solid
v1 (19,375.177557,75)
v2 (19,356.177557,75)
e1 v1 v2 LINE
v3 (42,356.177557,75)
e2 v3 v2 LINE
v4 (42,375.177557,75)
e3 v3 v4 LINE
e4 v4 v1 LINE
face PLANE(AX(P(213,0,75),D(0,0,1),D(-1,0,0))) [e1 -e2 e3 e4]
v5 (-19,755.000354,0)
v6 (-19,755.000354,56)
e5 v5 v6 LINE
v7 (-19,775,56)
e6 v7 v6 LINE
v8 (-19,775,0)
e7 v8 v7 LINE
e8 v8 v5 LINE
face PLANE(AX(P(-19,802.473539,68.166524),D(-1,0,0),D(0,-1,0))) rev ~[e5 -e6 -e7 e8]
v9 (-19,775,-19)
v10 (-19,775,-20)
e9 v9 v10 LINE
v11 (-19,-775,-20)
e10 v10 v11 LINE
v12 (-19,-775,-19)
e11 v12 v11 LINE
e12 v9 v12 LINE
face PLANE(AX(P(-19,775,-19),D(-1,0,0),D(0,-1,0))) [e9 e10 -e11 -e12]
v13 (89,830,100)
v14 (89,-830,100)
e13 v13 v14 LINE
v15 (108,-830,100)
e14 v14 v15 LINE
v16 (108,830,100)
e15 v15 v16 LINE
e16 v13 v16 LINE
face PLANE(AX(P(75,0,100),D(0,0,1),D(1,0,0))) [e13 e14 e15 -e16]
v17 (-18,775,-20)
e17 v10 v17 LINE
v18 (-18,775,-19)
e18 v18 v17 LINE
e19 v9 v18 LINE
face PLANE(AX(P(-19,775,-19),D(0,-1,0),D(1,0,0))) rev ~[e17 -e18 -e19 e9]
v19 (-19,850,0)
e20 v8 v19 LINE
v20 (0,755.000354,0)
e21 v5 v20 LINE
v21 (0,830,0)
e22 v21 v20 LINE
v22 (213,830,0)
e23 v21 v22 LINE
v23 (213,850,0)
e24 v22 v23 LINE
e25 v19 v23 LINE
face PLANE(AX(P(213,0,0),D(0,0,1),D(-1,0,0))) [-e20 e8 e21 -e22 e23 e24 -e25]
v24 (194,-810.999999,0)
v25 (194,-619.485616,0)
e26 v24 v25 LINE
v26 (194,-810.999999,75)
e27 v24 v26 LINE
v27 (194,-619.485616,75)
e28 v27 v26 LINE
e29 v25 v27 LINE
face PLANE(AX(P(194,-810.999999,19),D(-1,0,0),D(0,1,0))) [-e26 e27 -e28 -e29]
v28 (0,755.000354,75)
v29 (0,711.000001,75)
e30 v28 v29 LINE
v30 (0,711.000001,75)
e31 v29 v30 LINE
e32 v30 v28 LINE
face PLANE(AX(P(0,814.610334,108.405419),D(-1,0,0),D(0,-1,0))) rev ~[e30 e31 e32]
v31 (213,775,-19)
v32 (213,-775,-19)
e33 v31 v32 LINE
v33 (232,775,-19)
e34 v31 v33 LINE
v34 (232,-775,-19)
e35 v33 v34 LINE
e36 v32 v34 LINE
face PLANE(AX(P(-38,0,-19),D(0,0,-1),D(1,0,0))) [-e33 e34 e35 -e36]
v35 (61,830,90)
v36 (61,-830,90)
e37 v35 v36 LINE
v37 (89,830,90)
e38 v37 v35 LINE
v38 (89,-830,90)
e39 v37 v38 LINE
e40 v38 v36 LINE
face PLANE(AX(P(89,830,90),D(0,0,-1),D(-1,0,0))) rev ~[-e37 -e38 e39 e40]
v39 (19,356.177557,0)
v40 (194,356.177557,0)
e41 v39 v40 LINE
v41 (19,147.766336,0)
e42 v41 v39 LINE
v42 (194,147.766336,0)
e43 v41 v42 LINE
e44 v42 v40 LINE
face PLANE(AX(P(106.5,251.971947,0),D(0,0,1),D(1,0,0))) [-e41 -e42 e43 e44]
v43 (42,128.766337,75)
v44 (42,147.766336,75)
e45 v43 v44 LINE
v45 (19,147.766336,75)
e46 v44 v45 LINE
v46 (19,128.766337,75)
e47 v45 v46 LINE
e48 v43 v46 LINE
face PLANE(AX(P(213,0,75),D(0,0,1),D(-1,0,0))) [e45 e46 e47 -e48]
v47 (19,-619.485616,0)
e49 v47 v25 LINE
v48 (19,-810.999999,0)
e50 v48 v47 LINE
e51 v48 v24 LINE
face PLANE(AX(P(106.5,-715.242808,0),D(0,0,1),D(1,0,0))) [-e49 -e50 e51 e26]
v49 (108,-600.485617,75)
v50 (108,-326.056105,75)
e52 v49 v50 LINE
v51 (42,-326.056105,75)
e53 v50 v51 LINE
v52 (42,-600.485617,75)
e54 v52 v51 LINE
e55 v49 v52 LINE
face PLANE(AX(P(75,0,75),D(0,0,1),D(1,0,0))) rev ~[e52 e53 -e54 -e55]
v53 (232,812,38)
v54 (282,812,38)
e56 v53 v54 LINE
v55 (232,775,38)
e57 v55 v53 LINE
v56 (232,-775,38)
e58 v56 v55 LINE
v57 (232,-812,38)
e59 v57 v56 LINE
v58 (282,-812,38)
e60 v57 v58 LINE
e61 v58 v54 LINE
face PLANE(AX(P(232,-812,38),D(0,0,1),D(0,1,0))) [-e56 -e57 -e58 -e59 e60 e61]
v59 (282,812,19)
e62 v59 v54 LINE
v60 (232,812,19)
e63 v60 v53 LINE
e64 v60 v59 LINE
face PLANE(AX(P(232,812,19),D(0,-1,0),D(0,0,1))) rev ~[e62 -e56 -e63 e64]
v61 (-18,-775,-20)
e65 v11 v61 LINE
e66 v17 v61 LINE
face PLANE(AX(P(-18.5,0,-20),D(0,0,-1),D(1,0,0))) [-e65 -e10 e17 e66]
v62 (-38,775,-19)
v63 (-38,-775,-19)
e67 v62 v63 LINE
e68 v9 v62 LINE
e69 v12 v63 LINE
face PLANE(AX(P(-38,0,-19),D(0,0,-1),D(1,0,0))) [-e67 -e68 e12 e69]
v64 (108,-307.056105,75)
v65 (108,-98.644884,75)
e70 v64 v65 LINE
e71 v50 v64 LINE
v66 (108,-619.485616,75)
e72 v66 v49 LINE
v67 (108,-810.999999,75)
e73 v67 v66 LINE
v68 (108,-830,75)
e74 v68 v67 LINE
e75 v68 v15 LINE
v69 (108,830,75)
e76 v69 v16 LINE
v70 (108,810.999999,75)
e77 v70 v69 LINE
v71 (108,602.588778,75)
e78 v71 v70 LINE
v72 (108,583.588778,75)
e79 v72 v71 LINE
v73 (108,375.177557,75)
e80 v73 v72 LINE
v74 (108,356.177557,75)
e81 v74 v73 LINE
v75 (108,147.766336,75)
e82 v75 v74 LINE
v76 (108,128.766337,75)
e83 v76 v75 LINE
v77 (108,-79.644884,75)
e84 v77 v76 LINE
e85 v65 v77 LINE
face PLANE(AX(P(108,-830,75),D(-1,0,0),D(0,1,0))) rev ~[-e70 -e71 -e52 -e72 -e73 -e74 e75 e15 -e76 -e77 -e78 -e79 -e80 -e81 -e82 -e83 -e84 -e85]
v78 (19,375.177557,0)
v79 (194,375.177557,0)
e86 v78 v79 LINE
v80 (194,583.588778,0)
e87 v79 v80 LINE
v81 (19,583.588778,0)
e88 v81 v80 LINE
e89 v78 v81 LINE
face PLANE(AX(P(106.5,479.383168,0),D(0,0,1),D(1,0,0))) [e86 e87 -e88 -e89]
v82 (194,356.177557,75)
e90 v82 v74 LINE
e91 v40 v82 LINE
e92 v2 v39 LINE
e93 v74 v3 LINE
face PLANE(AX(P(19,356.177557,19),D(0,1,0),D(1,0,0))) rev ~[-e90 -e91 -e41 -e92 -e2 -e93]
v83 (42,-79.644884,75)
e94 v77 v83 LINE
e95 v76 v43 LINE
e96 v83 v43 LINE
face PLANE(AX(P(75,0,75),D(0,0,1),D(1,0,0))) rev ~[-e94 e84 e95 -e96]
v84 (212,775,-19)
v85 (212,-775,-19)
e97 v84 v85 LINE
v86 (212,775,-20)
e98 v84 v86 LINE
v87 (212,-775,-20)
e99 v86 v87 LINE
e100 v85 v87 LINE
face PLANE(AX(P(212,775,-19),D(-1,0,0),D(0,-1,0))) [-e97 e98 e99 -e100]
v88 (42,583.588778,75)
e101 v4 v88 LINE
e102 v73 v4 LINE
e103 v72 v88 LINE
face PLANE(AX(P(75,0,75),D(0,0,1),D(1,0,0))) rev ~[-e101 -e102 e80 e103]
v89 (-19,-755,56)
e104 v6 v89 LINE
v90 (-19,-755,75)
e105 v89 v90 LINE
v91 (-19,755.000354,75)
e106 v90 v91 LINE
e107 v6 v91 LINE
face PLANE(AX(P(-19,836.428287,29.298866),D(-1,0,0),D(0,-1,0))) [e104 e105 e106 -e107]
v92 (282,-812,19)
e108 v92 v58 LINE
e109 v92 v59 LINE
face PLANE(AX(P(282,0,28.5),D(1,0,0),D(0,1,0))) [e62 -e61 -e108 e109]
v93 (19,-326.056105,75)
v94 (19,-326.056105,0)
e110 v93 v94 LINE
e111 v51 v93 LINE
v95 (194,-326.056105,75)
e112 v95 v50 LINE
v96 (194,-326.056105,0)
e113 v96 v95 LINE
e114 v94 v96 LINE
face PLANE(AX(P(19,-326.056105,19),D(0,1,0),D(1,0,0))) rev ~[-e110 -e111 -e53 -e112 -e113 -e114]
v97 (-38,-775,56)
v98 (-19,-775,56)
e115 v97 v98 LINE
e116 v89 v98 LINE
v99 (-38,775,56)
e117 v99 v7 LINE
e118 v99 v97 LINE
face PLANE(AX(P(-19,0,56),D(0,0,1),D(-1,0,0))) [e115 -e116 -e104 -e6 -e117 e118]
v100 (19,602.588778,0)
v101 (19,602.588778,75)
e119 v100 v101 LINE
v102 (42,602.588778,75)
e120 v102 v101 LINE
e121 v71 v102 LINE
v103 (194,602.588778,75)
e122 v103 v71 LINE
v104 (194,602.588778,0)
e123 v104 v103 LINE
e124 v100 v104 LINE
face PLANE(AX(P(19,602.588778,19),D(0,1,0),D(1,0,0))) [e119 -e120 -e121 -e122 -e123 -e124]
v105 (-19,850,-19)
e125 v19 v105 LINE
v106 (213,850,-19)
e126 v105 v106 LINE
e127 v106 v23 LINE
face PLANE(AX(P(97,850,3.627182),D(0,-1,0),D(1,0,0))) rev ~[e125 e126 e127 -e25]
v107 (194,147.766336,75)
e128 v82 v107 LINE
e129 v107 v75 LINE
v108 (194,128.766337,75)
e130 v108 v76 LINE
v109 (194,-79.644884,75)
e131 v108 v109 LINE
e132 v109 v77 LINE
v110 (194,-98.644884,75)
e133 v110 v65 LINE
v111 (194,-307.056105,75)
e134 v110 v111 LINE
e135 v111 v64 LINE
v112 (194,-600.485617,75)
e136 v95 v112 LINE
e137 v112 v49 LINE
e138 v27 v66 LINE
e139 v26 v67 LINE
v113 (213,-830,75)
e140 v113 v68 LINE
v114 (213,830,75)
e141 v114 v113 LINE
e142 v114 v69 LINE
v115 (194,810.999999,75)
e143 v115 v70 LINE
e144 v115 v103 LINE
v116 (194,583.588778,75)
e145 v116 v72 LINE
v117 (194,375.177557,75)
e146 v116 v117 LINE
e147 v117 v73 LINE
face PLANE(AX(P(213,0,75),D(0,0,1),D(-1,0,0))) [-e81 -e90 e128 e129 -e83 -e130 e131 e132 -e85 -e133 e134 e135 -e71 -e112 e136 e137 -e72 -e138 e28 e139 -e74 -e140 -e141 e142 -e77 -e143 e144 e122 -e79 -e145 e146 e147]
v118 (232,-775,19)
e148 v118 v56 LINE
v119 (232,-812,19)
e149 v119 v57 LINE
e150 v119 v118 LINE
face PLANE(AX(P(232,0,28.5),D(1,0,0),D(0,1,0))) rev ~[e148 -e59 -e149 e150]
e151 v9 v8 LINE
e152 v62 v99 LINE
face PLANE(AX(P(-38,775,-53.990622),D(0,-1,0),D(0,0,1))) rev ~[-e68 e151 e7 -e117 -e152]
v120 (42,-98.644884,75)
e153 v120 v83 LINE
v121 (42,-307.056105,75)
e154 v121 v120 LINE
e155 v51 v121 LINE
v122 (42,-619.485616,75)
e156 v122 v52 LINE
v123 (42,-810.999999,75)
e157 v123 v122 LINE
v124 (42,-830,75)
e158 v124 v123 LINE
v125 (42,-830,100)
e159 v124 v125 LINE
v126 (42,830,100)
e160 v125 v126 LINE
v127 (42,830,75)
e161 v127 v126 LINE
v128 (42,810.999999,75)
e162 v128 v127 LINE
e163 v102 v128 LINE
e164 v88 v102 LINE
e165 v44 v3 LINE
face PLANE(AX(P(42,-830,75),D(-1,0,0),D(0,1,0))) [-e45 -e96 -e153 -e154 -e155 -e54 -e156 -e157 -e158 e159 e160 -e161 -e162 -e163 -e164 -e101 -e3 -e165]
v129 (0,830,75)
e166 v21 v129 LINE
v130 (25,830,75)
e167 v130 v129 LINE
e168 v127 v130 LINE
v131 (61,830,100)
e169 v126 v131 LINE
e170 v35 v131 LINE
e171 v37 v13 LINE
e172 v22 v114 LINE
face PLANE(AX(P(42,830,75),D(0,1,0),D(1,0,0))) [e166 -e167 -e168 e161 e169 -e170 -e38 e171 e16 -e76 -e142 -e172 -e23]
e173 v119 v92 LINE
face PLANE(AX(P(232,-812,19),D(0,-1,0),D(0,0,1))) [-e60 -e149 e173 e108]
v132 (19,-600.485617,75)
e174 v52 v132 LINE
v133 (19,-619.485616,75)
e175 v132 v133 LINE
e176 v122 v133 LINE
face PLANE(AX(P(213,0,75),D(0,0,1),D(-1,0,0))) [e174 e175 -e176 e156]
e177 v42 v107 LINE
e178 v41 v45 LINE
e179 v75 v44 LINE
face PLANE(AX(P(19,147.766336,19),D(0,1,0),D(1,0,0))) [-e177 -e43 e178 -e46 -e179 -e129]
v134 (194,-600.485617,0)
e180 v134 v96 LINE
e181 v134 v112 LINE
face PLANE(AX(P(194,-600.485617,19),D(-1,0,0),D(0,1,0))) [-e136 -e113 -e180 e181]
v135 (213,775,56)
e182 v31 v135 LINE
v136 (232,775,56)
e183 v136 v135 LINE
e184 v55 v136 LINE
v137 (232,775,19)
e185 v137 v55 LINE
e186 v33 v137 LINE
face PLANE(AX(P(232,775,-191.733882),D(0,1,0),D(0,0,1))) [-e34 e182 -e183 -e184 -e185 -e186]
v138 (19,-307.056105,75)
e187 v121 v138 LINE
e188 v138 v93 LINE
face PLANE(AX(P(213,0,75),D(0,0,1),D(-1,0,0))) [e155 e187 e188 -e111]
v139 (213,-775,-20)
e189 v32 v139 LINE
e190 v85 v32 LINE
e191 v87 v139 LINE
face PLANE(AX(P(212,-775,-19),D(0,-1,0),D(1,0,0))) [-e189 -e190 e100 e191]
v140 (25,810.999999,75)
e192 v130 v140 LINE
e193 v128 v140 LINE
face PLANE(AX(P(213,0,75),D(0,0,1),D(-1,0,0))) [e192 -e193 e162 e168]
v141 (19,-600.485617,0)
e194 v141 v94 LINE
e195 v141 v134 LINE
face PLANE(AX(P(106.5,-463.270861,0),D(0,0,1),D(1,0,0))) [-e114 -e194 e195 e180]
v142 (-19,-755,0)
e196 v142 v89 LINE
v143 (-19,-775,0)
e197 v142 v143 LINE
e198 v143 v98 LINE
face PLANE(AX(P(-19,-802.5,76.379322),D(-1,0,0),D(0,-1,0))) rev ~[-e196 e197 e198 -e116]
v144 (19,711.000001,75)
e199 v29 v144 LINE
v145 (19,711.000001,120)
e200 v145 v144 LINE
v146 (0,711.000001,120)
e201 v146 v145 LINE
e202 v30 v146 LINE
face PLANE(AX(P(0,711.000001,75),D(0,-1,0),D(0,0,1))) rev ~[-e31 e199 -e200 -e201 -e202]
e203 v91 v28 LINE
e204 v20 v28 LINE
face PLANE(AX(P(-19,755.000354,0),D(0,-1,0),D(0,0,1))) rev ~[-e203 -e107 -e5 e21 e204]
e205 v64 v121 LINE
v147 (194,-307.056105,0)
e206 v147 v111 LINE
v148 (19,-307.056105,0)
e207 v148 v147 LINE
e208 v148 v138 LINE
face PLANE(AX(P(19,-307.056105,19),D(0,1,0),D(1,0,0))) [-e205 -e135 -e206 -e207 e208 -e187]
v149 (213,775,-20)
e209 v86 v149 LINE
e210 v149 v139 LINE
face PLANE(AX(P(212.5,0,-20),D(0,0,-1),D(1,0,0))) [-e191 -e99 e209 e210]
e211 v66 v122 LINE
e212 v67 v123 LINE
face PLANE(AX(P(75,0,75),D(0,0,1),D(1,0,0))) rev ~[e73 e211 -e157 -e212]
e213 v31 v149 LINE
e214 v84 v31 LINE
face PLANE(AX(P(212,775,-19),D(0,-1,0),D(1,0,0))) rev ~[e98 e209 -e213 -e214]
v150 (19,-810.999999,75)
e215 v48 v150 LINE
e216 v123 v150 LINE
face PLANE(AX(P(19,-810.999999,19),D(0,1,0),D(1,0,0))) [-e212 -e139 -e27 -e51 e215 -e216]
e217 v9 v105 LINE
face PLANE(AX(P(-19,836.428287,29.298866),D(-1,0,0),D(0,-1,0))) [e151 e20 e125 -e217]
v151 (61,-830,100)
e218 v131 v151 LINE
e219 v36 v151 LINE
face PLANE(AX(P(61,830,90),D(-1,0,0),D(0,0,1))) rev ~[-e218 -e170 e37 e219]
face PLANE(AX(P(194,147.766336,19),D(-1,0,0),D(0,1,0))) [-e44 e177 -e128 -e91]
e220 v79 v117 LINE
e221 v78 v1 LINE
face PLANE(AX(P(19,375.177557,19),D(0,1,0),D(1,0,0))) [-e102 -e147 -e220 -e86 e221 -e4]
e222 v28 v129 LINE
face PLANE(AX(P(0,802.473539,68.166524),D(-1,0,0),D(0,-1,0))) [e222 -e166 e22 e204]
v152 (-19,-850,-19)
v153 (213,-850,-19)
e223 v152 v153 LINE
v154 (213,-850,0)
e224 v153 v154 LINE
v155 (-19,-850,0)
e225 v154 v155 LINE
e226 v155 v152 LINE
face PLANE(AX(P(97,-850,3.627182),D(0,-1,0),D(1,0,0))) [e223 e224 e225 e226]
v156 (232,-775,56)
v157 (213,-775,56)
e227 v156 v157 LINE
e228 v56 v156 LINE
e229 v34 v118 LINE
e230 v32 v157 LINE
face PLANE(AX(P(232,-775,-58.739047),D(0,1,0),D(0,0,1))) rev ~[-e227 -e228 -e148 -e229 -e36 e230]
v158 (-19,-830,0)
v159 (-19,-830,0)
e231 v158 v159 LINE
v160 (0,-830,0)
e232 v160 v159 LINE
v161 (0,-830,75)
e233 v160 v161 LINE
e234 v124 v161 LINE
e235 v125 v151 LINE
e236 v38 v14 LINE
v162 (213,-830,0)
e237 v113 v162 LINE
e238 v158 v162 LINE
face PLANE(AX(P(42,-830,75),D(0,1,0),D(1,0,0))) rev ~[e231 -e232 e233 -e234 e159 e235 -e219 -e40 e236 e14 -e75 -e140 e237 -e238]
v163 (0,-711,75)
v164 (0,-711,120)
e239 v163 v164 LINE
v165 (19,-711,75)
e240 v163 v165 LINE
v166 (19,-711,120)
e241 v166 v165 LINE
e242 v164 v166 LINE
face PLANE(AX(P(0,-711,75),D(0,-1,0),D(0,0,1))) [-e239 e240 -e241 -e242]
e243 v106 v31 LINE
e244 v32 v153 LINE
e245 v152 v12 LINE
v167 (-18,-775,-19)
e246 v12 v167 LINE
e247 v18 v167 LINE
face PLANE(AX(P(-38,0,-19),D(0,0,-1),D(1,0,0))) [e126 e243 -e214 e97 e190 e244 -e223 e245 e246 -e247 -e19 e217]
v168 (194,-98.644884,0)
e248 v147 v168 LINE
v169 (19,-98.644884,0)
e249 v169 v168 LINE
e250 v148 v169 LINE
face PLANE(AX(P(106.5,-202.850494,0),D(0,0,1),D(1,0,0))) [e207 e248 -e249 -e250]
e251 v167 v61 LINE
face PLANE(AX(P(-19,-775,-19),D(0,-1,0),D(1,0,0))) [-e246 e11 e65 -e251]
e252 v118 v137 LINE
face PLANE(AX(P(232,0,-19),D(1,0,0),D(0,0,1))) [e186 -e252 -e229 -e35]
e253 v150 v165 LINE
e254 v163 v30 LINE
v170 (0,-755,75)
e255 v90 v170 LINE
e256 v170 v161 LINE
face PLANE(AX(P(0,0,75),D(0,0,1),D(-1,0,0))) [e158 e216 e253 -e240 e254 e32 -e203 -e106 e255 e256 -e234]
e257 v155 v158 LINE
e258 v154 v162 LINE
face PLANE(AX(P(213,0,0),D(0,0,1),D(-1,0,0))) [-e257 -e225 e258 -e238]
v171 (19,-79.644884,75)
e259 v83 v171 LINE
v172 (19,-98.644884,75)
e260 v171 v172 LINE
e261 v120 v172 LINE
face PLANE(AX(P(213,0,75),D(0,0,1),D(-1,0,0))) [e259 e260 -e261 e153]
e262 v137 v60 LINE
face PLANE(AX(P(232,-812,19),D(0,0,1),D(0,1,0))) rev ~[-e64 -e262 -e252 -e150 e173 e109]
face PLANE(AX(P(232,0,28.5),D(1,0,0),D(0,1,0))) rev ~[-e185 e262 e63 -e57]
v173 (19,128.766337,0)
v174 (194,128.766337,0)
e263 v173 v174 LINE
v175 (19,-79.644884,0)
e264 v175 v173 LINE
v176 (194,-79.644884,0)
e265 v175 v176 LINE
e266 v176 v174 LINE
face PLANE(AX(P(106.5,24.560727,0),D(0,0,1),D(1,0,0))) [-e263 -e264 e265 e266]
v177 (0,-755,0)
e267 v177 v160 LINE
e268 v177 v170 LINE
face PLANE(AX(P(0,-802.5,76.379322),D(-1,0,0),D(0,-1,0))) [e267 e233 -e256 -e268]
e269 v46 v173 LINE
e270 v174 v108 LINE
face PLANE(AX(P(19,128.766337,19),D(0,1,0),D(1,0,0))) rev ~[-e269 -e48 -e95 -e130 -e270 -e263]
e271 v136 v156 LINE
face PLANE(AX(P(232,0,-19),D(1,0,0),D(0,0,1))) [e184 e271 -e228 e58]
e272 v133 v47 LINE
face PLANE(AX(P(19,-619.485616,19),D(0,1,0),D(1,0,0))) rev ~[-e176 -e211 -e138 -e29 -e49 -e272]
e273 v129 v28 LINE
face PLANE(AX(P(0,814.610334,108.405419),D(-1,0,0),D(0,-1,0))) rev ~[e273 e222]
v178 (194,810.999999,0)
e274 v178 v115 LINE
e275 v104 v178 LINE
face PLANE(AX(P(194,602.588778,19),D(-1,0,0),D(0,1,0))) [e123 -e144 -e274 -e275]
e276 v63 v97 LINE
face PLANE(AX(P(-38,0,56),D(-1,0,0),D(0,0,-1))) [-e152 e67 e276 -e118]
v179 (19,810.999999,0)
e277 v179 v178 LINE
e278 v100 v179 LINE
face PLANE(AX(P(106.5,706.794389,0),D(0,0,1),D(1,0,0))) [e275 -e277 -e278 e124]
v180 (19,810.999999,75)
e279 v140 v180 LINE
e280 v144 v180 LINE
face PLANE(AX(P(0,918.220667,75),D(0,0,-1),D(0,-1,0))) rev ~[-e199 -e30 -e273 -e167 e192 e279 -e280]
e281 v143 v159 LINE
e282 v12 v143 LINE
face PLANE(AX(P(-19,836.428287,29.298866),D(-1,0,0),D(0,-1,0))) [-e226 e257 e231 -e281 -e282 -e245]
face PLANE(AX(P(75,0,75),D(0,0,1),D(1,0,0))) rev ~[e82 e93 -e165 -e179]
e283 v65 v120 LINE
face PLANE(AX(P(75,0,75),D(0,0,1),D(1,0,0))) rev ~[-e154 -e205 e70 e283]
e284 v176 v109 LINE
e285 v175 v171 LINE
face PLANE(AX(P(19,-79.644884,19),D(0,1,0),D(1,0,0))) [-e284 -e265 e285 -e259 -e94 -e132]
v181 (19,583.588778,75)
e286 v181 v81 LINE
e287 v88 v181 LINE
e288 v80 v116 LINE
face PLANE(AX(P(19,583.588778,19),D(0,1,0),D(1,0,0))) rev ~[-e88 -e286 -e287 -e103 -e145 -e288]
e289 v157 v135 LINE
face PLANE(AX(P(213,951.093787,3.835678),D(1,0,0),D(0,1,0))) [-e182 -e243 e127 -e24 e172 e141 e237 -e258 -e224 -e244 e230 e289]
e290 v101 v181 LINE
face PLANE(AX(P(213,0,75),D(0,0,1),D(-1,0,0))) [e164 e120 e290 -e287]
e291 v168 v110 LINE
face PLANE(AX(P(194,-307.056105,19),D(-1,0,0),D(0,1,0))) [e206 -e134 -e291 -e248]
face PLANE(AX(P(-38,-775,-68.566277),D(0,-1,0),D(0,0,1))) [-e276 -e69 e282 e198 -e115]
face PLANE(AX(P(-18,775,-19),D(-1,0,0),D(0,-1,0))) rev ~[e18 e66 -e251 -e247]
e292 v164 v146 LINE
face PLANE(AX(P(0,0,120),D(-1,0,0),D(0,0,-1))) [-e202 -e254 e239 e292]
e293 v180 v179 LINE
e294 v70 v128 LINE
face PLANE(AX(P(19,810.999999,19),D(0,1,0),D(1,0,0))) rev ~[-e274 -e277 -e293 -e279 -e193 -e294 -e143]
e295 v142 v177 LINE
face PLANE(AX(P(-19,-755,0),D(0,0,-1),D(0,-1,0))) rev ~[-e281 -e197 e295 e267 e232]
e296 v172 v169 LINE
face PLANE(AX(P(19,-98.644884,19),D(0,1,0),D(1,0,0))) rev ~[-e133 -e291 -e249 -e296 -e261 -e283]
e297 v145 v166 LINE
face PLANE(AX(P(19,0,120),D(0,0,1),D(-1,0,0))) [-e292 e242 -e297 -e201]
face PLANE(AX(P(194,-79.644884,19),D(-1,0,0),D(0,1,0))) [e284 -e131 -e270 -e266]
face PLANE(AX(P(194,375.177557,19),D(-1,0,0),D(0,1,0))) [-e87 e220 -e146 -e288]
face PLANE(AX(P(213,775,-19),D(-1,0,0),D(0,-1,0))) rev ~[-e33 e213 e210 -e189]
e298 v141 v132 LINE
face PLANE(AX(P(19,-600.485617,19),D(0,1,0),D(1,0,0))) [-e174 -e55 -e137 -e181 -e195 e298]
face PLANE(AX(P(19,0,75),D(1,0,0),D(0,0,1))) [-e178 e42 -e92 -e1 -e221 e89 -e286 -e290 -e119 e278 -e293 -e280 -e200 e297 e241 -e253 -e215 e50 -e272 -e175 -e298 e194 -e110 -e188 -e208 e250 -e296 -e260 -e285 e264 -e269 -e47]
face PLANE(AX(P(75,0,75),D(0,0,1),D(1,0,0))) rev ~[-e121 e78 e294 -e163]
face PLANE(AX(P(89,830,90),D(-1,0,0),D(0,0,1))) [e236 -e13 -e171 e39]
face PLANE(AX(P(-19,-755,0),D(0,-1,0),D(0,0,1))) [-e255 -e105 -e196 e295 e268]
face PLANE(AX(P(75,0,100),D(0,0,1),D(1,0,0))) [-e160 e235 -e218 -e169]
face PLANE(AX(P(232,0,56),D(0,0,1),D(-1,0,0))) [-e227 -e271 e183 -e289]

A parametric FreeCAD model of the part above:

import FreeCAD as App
import Part
import Sketcher


def add_polygon(sketch, points):
    """Adds a closed chain of lines whose ends are joined by coincident constraints."""
    first, n = sketch.GeometryCount, len(points)
    for a, b in zip(points, points[1:] + points[:1]):
        sketch.addGeometry(Part.LineSegment(App.Vector(*a, 0), App.Vector(*b, 0)), False)
    for i in range(n):
        sketch.addConstraint(Sketcher.Constraint("Coincident", first + i, 2, first + (i + 1) % n, 1))

doc = App.newDocument("Part")
body = doc.addObject("PartDesign::Body", "Body")

sketch1 = doc.addObject("Sketcher::SketchObject", "Sketch")
body.addObject(sketch1)
sketch1.AttachmentSupport = (doc.XZ_Plane, [""])
sketch1.MapMode = "FlatFace"
add_polygon(sketch1, [(-19, 75), (-19, 0), (213, 0), (213, 75), (19, 75), (19, 120), (0, 120), (0, 75)])
sketch1.addConstraint(Sketcher.Constraint("Vertical", 0))
sketch1.addConstraint(Sketcher.Constraint("Horizontal", 1))
sketch1.addConstraint(Sketcher.Constraint("Vertical", 2))
sketch1.addConstraint(Sketcher.Constraint("Horizontal", 3))
sketch1.addConstraint(Sketcher.Constraint("Vertical", 4))
sketch1.addConstraint(Sketcher.Constraint("Horizontal", 5))
sketch1.addConstraint(Sketcher.Constraint("Vertical", 6))
sketch1.addConstraint(Sketcher.Constraint("Horizontal", 7))
sketch1.addConstraint(Sketcher.Constraint("Symmetric", 3, 2, 7, 2, -2))
sketch1.addConstraint(Sketcher.Constraint("PointOnObject", 0, 2, -1))
sketch1.addConstraint(Sketcher.Constraint("PointOnObject", 5, 2, -2))
sketch1.addConstraint(Sketcher.Constraint("DistanceX", 1, 1, 1, 2, 232.0))
sketch1.addConstraint(Sketcher.Constraint("DistanceX", 3, 2, 3, 1, 194.0))
sketch1.addConstraint(Sketcher.Constraint("DistanceY", 0, 2, 0, 1, 75.0))
sketch1.addConstraint(Sketcher.Constraint("DistanceY", 4, 1, 4, 2, 45.0))
pad1 = doc.addObject("PartDesign::Pad", "Pad")
body.addObject(pad1)
pad1.Profile = sketch1
pad1.Length = 1660
pad1.Midplane = True

sketch2 = doc.addObject("Sketcher::SketchObject", "Sketch001")
body.addObject(sketch2)
sketch2.AttachmentSupport = (doc.XY_Plane, [""])
sketch2.MapMode = "FlatFace"
sketch2.AttachmentOffset = App.Placement(App.Vector(0, 0, 19), App.Rotation())
add_polygon(sketch2, [(19, 810.999999), (19, 602.588778), (194, 602.588778), (194, 810.999999)])
add_polygon(sketch2, [(19, 583.588778), (19, 375.177557), (194, 375.177557), (194, 583.588778)])
add_polygon(sketch2, [(19, 356.177557), (19, 147.766336), (194, 147.766336), (194, 356.177557)])
add_polygon(sketch2, [(19, 128.766337), (19, -79.644884), (194, -79.644884), (194, 128.766337)])
add_polygon(sketch2, [(19, -619.485616), (19, -810.999999), (194, -810.999999), (194, -619.485616)])
add_polygon(sketch2, [(19, -326.056105), (19, -600.485617), (194, -600.485617), (194, -326.056105)])
add_polygon(sketch2, [(19, -98.644884), (19, -307.056105), (194, -307.056105), (194, -98.644884)])
sketch2.addConstraint(Sketcher.Constraint("Vertical", 0))
sketch2.addConstraint(Sketcher.Constraint("Horizontal", 1))
sketch2.addConstraint(Sketcher.Constraint("Vertical", 2))
sketch2.addConstraint(Sketcher.Constraint("Horizontal", 3))
sketch2.addConstraint(Sketcher.Constraint("Vertical", 4))
sketch2.addConstraint(Sketcher.Constraint("Horizontal", 5))
sketch2.addConstraint(Sketcher.Constraint("Vertical", 6))
sketch2.addConstraint(Sketcher.Constraint("Horizontal", 7))
sketch2.addConstraint(Sketcher.Constraint("Vertical", 8))
sketch2.addConstraint(Sketcher.Constraint("Horizontal", 9))
sketch2.addConstraint(Sketcher.Constraint("Vertical", 10))
sketch2.addConstraint(Sketcher.Constraint("Horizontal", 11))
sketch2.addConstraint(Sketcher.Constraint("Vertical", 12))
sketch2.addConstraint(Sketcher.Constraint("Horizontal", 13))
sketch2.addConstraint(Sketcher.Constraint("Vertical", 14))
sketch2.addConstraint(Sketcher.Constraint("Horizontal", 15))
sketch2.addConstraint(Sketcher.Constraint("Vertical", 16))
sketch2.addConstraint(Sketcher.Constraint("Horizontal", 17))
sketch2.addConstraint(Sketcher.Constraint("Vertical", 18))
sketch2.addConstraint(Sketcher.Constraint("Horizontal", 19))
sketch2.addConstraint(Sketcher.Constraint("Vertical", 20))
sketch2.addConstraint(Sketcher.Constraint("Horizontal", 21))
sketch2.addConstraint(Sketcher.Constraint("Vertical", 22))
sketch2.addConstraint(Sketcher.Constraint("Horizontal", 23))
sketch2.addConstraint(Sketcher.Constraint("Vertical", 24))
sketch2.addConstraint(Sketcher.Constraint("Horizontal", 25))
sketch2.addConstraint(Sketcher.Constraint("Vertical", 26))
sketch2.addConstraint(Sketcher.Constraint("Horizontal", 27))
sketch2.addConstraint(Sketcher.Constraint("Symmetric", 3, 2, 16, 2, -1))
sketch2.addConstraint(Sketcher.Constraint("Vertical", 3, 2, 4, 2))
sketch2.addConstraint(Sketcher.Constraint("Vertical", 2, 2, 5, 2))
sketch2.addConstraint(Sketcher.Constraint("Vertical", 7, 2, 8, 2))
sketch2.addConstraint(Sketcher.Constraint("Vertical", 6, 2, 9, 2))
sketch2.addConstraint(Sketcher.Constraint("Vertical", 11, 2, 12, 2))
sketch2.addConstraint(Sketcher.Constraint("Vertical", 10, 2, 13, 2))
sketch2.addConstraint(Sketcher.Constraint("Vertical", 14, 2, 17, 2))
sketch2.addConstraint(Sketcher.Constraint("Vertical", 19, 2, 20, 2))
sketch2.addConstraint(Sketcher.Constraint("Vertical", 18, 2, 21, 2))
sketch2.addConstraint(Sketcher.Constraint("Vertical", 23, 2, 24, 2))
sketch2.addConstraint(Sketcher.Constraint("Vertical", 22, 2, 25, 2))
sketch2.addConstraint(Sketcher.Constraint("Equal", 2, 4))
sketch2.addConstraint(Sketcher.Constraint("Equal", 6, 8))
sketch2.addConstraint(Sketcher.Constraint("Equal", 10, 12))
sketch2.addConstraint(Sketcher.Constraint("Equal", 14, 24))
sketch2.addConstraint(Sketcher.Constraint("DistanceX", 1, 1, 1, 2, 175.0))
sketch2.addConstraint(Sketcher.Constraint("DistanceX", -1, 1, 0, 2, 19.0))
sketch2.addConstraint(Sketcher.Constraint("DistanceY", -1, 1, 2, 2, 810.999999))
sketch2.addConstraint(Sketcher.Constraint("DistanceY", 6, 2, 1, 2, 19.0))
sketch2.addConstraint(Sketcher.Constraint("DistanceY", 10, 2, 5, 2, 19.0))
sketch2.addConstraint(Sketcher.Constraint("DistanceY", 14, 2, 9, 2, 18.999999))
sketch2.addConstraint(Sketcher.Constraint("DistanceY", 19, 2, 20, 2, 18.999999))
sketch2.addConstraint(Sketcher.Constraint("DistanceY", 23, 2, 24, 2, 19.0))
sketch2.addConstraint(Sketcher.Constraint("DistanceY", 26, 2, 13, 2, 19.0))
sketch2.addConstraint(Sketcher.Constraint("DistanceY", 0, 2, 0, 1, 208.411221))
sketch2.addConstraint(Sketcher.Constraint("DistanceY", 16, 2, 16, 1, 191.514383))
pocket1 = doc.addObject("PartDesign::Pocket", "Pocket")
body.addObject(pocket1)
pocket1.Profile = sketch2
pocket1.Length = 100
pocket1.Reversed = True

sketch3 = doc.addObject("Sketcher::SketchObject", "Sketch002")
body.addObject(sketch3)
sketch3.AttachmentSupport = (doc.XY_Plane, [""])
sketch3.MapMode = "FlatFace"
sketch3.AttachmentOffset = App.Placement(App.Vector(0, 0, 75), App.Rotation())
add_polygon(sketch3, [(42, 830), (42, -830), (108, -830), (108, 830)])
sketch3.addConstraint(Sketcher.Constraint("Vertical", 0))
sketch3.addConstraint(Sketcher.Constraint("Horizontal", 1))
sketch3.addConstraint(Sketcher.Constraint("Vertical", 2))
sketch3.addConstraint(Sketcher.Constraint("Horizontal", 3))
sketch3.addConstraint(Sketcher.Constraint("DistanceX", 1, 1, 1, 2, 66.0))
sketch3.addConstraint(Sketcher.Constraint("DistanceY", 0, 2, 0, 1, 1660.0))
sketch3.addConstraint(Sketcher.Constraint("DistanceX", -1, 1, 0, 2, 42.0))
sketch3.addConstraint(Sketcher.Constraint("DistanceY", 0, 2, -1, 1, 830.0))
pad2 = doc.addObject("PartDesign::Pad", "Pad001")
body.addObject(pad2)
pad2.Profile = sketch3
pad2.Length = 25

sketch4 = doc.addObject("Sketcher::SketchObject", "Sketch003")
body.addObject(sketch4)
sketch4.AttachmentSupport = (doc.XZ_Plane, [""])
sketch4.MapMode = "FlatFace"
add_polygon(sketch4, [(-19, 0), (-19, 56), (-38, 56), (-38, -19), (232, -19), (232, 56), (213, 56), (213, 0)])
sketch4.addConstraint(Sketcher.Constraint("Vertical", 0))
sketch4.addConstraint(Sketcher.Constraint("Horizontal", 1))
sketch4.addConstraint(Sketcher.Constraint("Vertical", 2))
sketch4.addConstraint(Sketcher.Constraint("Horizontal", 3))
sketch4.addConstraint(Sketcher.Constraint("Vertical", 4))
sketch4.addConstraint(Sketcher.Constraint("Horizontal", 5))
sketch4.addConstraint(Sketcher.Constraint("Vertical", 6))
sketch4.addConstraint(Sketcher.Constraint("Horizontal", 7))
sketch4.addConstraint(Sketcher.Constraint("PointOnObject", 6, 2, -1))
sketch4.addConstraint(Sketcher.Constraint("Horizontal", 1, 2, 4, 2))
sketch4.addConstraint(Sketcher.Constraint("Equal", 1, 5))
sketch4.addConstraint(Sketcher.Constraint("DistanceX", 1, 2, 1, 1, 19.0))
sketch4.addConstraint(Sketcher.Constraint("DistanceX", 3, 1, 3, 2, 270.0))
sketch4.addConstraint(Sketcher.Constraint("DistanceY", 0, 1, 0, 2, 56.0))
sketch4.addConstraint(Sketcher.Constraint("DistanceY", 2, 2, 2, 1, 75.0))
sketch4.addConstraint(Sketcher.Constraint("DistanceX", 0, 2, -1, 1, 19.0))
pad3 = doc.addObject("PartDesign::Pad", "Pad002")
body.addObject(pad3)
pad3.Profile = sketch4
pad3.Length = 1700
pad3.Midplane = True

sketch5 = doc.addObject("Sketcher::SketchObject", "Sketch004")
body.addObject(sketch5)
sketch5.AttachmentSupport = (doc.YZ_Plane, [""])
sketch5.MapMode = "FlatFace"
sketch5.AttachmentOffset = App.Placement(App.Vector(0, 0, -38), App.Rotation())
add_polygon(sketch5, [(897.856574, 112.588354), (897.856574, -53.990622), (775, -53.990622), (775, 112.588354)])
add_polygon(sketch5, [(-775, 157.356471), (-775, -68.566277), (-896.810914, -68.566277), (-896.810914, 157.356471)])
sketch5.addConstraint(Sketcher.Constraint("Vertical", 0))
sketch5.addConstraint(Sketcher.Constraint("Horizontal", 1))
sketch5.addConstraint(Sketcher.Constraint("Vertical", 2))
sketch5.addConstraint(Sketcher.Constraint("Horizontal", 3))
sketch5.addConstraint(Sketcher.Constraint("Vertical", 4))
sketch5.addConstraint(Sketcher.Constraint("Horizontal", 5))
sketch5.addConstraint(Sketcher.Constraint("Vertical", 6))
sketch5.addConstraint(Sketcher.Constraint("Horizontal", 7))
sketch5.addConstraint(Sketcher.Constraint("DistanceX", -1, 1, 1, 2, 775.0))
sketch5.addConstraint(Sketcher.Constraint("DistanceX", 4, 2, -1, 1, 775.0))
sketch5.addConstraint(Sketcher.Constraint("DistanceY", 4, 2, 4, 1, 225.922749))
sketch5.addConstraint(Sketcher.Constraint("DistanceX", 1, 2, 1, 1, 122.856574))
sketch5.addConstraint(Sketcher.Constraint("DistanceX", 5, 2, 5, 1, 121.810914))
sketch5.addConstraint(Sketcher.Constraint("DistanceY", 0, 2, 0, 1, 166.578976))
sketch5.addConstraint(Sketcher.Constraint("DistanceY", -1, 1, 6, 2, 157.356471))
sketch5.addConstraint(Sketcher.Constraint("DistanceY", 4, 2, 2, 2, 181.154631))
pocket2 = doc.addObject("PartDesign::Pocket", "Pocket001")
body.addObject(pocket2)
pocket2.Profile = sketch5
pocket2.Length = 19
pocket2.Reversed = True

sketch6 = doc.addObject("Sketcher::SketchObject", "Sketch005")
body.addObject(sketch6)
sketch6.AttachmentSupport = (doc.YZ_Plane, [""])
sketch6.MapMode = "FlatFace"
sketch6.AttachmentOffset = App.Placement(App.Vector(0, 0, 232), App.Rotation())
add_polygon(sketch6, [(-887.336252, 89.132193), (-887.336252, -58.739047), (-775, -58.739047), (-775, 89.132193)])
add_polygon(sketch6, [(775, 199.405238), (775, -191.733882), (1127.187574, -191.733882), (1127.187574, 199.405238)])
sketch6.addConstraint(Sketcher.Constraint("Vertical", 0))
sketch6.addConstraint(Sketcher.Constraint("Horizontal", 1))
sketch6.addConstraint(Sketcher.Constraint("Vertical", 2))
sketch6.addConstraint(Sketcher.Constraint("Horizontal", 3))
sketch6.addConstraint(Sketcher.Constraint("Vertical", 4))
sketch6.addConstraint(Sketcher.Constraint("Horizontal", 5))
sketch6.addConstraint(Sketcher.Constraint("Vertical", 6))
sketch6.addConstraint(Sketcher.Constraint("Horizontal", 7))
sketch6.addConstraint(Sketcher.Constraint("DistanceX", 1, 2, -1, 1, 775.0))
sketch6.addConstraint(Sketcher.Constraint("DistanceX", -1, 1, 4, 2, 775.0))
sketch6.addConstraint(Sketcher.Constraint("DistanceX", 1, 1, 1, 2, 112.336252))
sketch6.addConstraint(Sketcher.Constraint("DistanceY", 0, 2, 0, 1, 147.87124))
sketch6.addConstraint(Sketcher.Constraint("DistanceY", 4, 2, 4, 1, 391.13912))
sketch6.addConstraint(Sketcher.Constraint("DistanceX", 5, 1, 5, 2, 352.187574))
sketch6.addConstraint(Sketcher.Constraint("DistanceY", 4, 2, -1, 1, 191.733882))
sketch6.addConstraint(Sketcher.Constraint("DistanceY", 0, 2, -1, 1, 58.739047))
pocket3 = doc.addObject("PartDesign::Pocket", "Pocket002")
body.addObject(pocket3)
pocket3.Profile = sketch6
pocket3.Length = 19

sketch7 = doc.addObject("Sketcher::SketchObject", "Sketch006")
body.addObject(sketch7)
sketch7.AttachmentSupport = (doc.YZ_Plane, [""])
sketch7.MapMode = "FlatFace"
add_polygon(sketch7, [(918.220667, 141.810838), (918.220667, 75), (711.000001, 75), (711.000001, 141.810838)])
add_polygon(sketch7, [(-711, 146.950136), (-711, 75), (-916.507578, 75), (-916.507578, 146.950136)])
sketch7.addConstraint(Sketcher.Constraint("Vertical", 0))
sketch7.addConstraint(Sketcher.Constraint("Horizontal", 1))
sketch7.addConstraint(Sketcher.Constraint("Vertical", 2))
sketch7.addConstraint(Sketcher.Constraint("Horizontal", 3))
sketch7.addConstraint(Sketcher.Constraint("Vertical", 4))
sketch7.addConstraint(Sketcher.Constraint("Horizontal", 5))
sketch7.addConstraint(Sketcher.Constraint("Vertical", 6))
sketch7.addConstraint(Sketcher.Constraint("Horizontal", 7))
sketch7.addConstraint(Sketcher.Constraint("Symmetric", 1, 2, 4, 2, -2))
sketch7.addConstraint(Sketcher.Constraint("DistanceY", -1, 1, 0, 2, 75.0))
sketch7.addConstraint(Sketcher.Constraint("DistanceX", -1, 1, 1, 2, 711.000001))
sketch7.addConstraint(Sketcher.Constraint("DistanceY", 0, 2, 0, 1, 66.810839))
sketch7.addConstraint(Sketcher.Constraint("DistanceX", 1, 2, 1, 1, 207.220667))
sketch7.addConstraint(Sketcher.Constraint("DistanceX", 5, 2, 5, 1, 205.507578))
sketch7.addConstraint(Sketcher.Constraint("DistanceY", 4, 2, 4, 1, 71.950136))
pocket4 = doc.addObject("PartDesign::Pocket", "Pocket003")
body.addObject(pocket4)
pocket4.Profile = sketch7
pocket4.Length = 25
pocket4.Reversed = True

sketch8 = doc.addObject("Sketcher::SketchObject", "Sketch007")
body.addObject(sketch8)
sketch8.AttachmentSupport = (doc.YZ_Plane, [""])
sketch8.MapMode = "FlatFace"
sketch8.AttachmentOffset = App.Placement(App.Vector(0, 0, 232), App.Rotation())
add_polygon(sketch8, [(-812, 38), (-812, 19), (812, 19), (812, 38)])
sketch8.addConstraint(Sketcher.Constraint("Vertical", 0))
sketch8.addConstraint(Sketcher.Constraint("Horizontal", 1))
sketch8.addConstraint(Sketcher.Constraint("Vertical", 2))
sketch8.addConstraint(Sketcher.Constraint("Horizontal", 3))
sketch8.addConstraint(Sketcher.Constraint("DistanceX", 1, 1, 1, 2, 1624.0))
sketch8.addConstraint(Sketcher.Constraint("DistanceY", 0, 2, 0, 1, 19.0))
sketch8.addConstraint(Sketcher.Constraint("DistanceX", 0, 2, -1, 1, 812.0))
sketch8.addConstraint(Sketcher.Constraint("DistanceY", -1, 1, 0, 2, 19.0))
pad4 = doc.addObject("PartDesign::Pad", "Pad003")
body.addObject(pad4)
pad4.Profile = sketch8
pad4.Length = 50

sketch9 = doc.addObject("Sketcher::SketchObject", "Sketch008")
body.addObject(sketch9)
sketch9.AttachmentSupport = (doc.YZ_Plane, [""])
sketch9.MapMode = "FlatFace"
sketch9.AttachmentOffset = App.Placement(App.Vector(0, 0, -19), App.Rotation())
add_polygon(sketch9, [(850, 136.20314), (850, 0), (755.000354, 0), (755.000354, 136.462602)])
add_polygon(sketch9, [(-755, 152.758644), (-755, 0), (-850, 0), (-850, 152.758644)])
sketch9.addConstraint(Sketcher.Constraint("Vertical", 0))
sketch9.addConstraint(Sketcher.Constraint("Horizontal", 1))
sketch9.addConstraint(Sketcher.Constraint("Vertical", 2))
sketch9.addConstraint(Sketcher.Constraint("Vertical", 4))
sketch9.addConstraint(Sketcher.Constraint("Horizontal", 5))
sketch9.addConstraint(Sketcher.Constraint("Vertical", 6))
sketch9.addConstraint(Sketcher.Constraint("Horizontal", 7))
sketch9.addConstraint(Sketcher.Constraint("Symmetric", 0, 2, 5, 2, -1, 1))
sketch9.addConstraint(Sketcher.Constraint("PointOnObject", 0, 2, -1))
sketch9.addConstraint(Sketcher.Constraint("DistanceX", 5, 2, 5, 1, 95.0))
sketch9.addConstraint(Sketcher.Constraint("Distance", 3, 95.0))
sketch9.addConstraint(Sketcher.Constraint("DistanceX", -1, 1, 0, 2, 850.0))
sketch9.addConstraint(Sketcher.Constraint("DistanceY", 2, 1, 2, 2, 136.462602))
sketch9.addConstraint(Sketcher.Constraint("DistanceY", 0, 2, 0, 1, 136.20314))
sketch9.addConstraint(Sketcher.Constraint("DistanceY", 4, 2, 4, 1, 152.758643))
pocket5 = doc.addObject("PartDesign::Pocket", "Pocket004")
body.addObject(pocket5)
pocket5.Profile = sketch9
pocket5.Length = 19
pocket5.Reversed = True

sketch10 = doc.addObject("Sketcher::SketchObject", "Sketch009")
body.addObject(sketch10)
sketch10.AttachmentSupport = (doc.XY_Plane, [""])
sketch10.MapMode = "FlatFace"
sketch10.AttachmentOffset = App.Placement(App.Vector(0, 0, 19), App.Rotation())
add_polygon(sketch10, [(19, 810.999999), (19, 602.588778), (194, 602.588778), (194, 810.999999)])
add_polygon(sketch10, [(19, 583.588778), (19, 375.177557), (194, 375.177557), (194, 583.588778)])
add_polygon(sketch10, [(19, 356.177557), (19, 147.766336), (194, 147.766336), (194, 356.177557)])
add_polygon(sketch10, [(19, 128.766337), (19, -79.644884), (194, -79.644884), (194, 128.766337)])
add_polygon(sketch10, [(19, -98.644884), (19, -307.056105), (194, -307.056105), (194, -98.644884)])
add_polygon(sketch10, [(19, -326.056105), (19, -600.485617), (194, -600.485617), (194, -326.056105)])
add_polygon(sketch10, [(19, -619.485616), (19, -810.999999), (194, -810.999999), (194, -619.485616)])
sketch10.addConstraint(Sketcher.Constraint("Vertical", 0))
sketch10.addConstraint(Sketcher.Constraint("Horizontal", 1))
sketch10.addConstraint(Sketcher.Constraint("Vertical", 2))
sketch10.addConstraint(Sketcher.Constraint("Horizontal", 3))
sketch10.addConstraint(Sketcher.Constraint("Vertical", 4))
sketch10.addConstraint(Sketcher.Constraint("Horizontal", 5))
sketch10.addConstraint(Sketcher.Constraint("Vertical", 6))
sketch10.addConstraint(Sketcher.Constraint("Horizontal", 7))
sketch10.addConstraint(Sketcher.Constraint("Vertical", 8))
sketch10.addConstraint(Sketcher.Constraint("Horizontal", 9))
sketch10.addConstraint(Sketcher.Constraint("Vertical", 10))
sketch10.addConstraint(Sketcher.Constraint("Horizontal", 11))
sketch10.addConstraint(Sketcher.Constraint("Vertical", 12))
sketch10.addConstraint(Sketcher.Constraint("Horizontal", 13))
sketch10.addConstraint(Sketcher.Constraint("Vertical", 14))
sketch10.addConstraint(Sketcher.Constraint("Horizontal", 15))
sketch10.addConstraint(Sketcher.Constraint("Vertical", 16))
sketch10.addConstraint(Sketcher.Constraint("Horizontal", 17))
sketch10.addConstraint(Sketcher.Constraint("Vertical", 18))
sketch10.addConstraint(Sketcher.Constraint("Horizontal", 19))
sketch10.addConstraint(Sketcher.Constraint("Vertical", 20))
sketch10.addConstraint(Sketcher.Constraint("Horizontal", 21))
sketch10.addConstraint(Sketcher.Constraint("Vertical", 22))
sketch10.addConstraint(Sketcher.Constraint("Horizontal", 23))
sketch10.addConstraint(Sketcher.Constraint("Vertical", 24))
sketch10.addConstraint(Sketcher.Constraint("Horizontal", 25))
sketch10.addConstraint(Sketcher.Constraint("Vertical", 26))
sketch10.addConstraint(Sketcher.Constraint("Horizontal", 27))
sketch10.addConstraint(Sketcher.Constraint("Symmetric", 3, 2, 24, 2, -1))
sketch10.addConstraint(Sketcher.Constraint("Vertical", 3, 2, 4, 2))
sketch10.addConstraint(Sketcher.Constraint("Vertical", 2, 2, 5, 2))
sketch10.addConstraint(Sketcher.Constraint("Vertical", 7, 2, 8, 2))
sketch10.addConstraint(Sketcher.Constraint("Vertical", 6, 2, 9, 2))
sketch10.addConstraint(Sketcher.Constraint("Vertical", 11, 2, 12, 2))
sketch10.addConstraint(Sketcher.Constraint("Vertical", 10, 2, 13, 2))
sketch10.addConstraint(Sketcher.Constraint("Vertical", 15, 2, 16, 2))
sketch10.addConstraint(Sketcher.Constraint("Vertical", 14, 2, 17, 2))
sketch10.addConstraint(Sketcher.Constraint("Vertical", 19, 2, 20, 2))
sketch10.addConstraint(Sketcher.Constraint("Vertical", 18, 2, 21, 2))
sketch10.addConstraint(Sketcher.Constraint("Vertical", 22, 2, 25, 2))
sketch10.addConstraint(Sketcher.Constraint("Equal", 2, 4))
sketch10.addConstraint(Sketcher.Constraint("Equal", 6, 8))
sketch10.addConstraint(Sketcher.Constraint("Equal", 10, 12))
sketch10.addConstraint(Sketcher.Constraint("Equal", 14, 16))
sketch10.addConstraint(Sketcher.Constraint("DistanceX", 1, 1, 1, 2, 175.0))
sketch10.addConstraint(Sketcher.Constraint("DistanceX", -1, 1, 0, 2, 19.0))
sketch10.addConstraint(Sketcher.Constraint("DistanceY", -1, 1, 2, 2, 810.999999))
sketch10.addConstraint(Sketcher.Constraint("DistanceY", 6, 2, 1, 2, 19.0))
sketch10.addConstraint(Sketcher.Constraint("DistanceY", 10, 2, 5, 2, 19.0))
sketch10.addConstraint(Sketcher.Constraint("DistanceY", 14, 2, 9, 2, 18.999999))
sketch10.addConstraint(Sketcher.Constraint("DistanceY", 18, 2, 13, 2, 19.0))
sketch10.addConstraint(Sketcher.Constraint("DistanceY", 22, 2, 17, 2, 19.0))
sketch10.addConstraint(Sketcher.Constraint("DistanceY", 26, 2, 21, 2, 18.999999))
sketch10.addConstraint(Sketcher.Constraint("DistanceY", 0, 2, 0, 1, 208.411221))
sketch10.addConstraint(Sketcher.Constraint("DistanceY", 20, 2, 20, 1, 274.429512))
pocket6 = doc.addObject("PartDesign::Pocket", "Pocket005")
body.addObject(pocket6)
pocket6.Profile = sketch10
pocket6.Length = 19

sketch11 = doc.addObject("Sketcher::SketchObject", "Sketch010")
body.addObject(sketch11)
sketch11.AttachmentSupport = (doc.XY_Plane, [""])
sketch11.MapMode = "FlatFace"
sketch11.AttachmentOffset = App.Placement(App.Vector(0, 0, -19), App.Rotation())
add_polygon(sketch11, [(212, -775), (212, 775), (213, 775), (213, -775)])
add_polygon(sketch11, [(-19, -775), (-19, 775), (-18, 775), (-18, -775)])
sketch11.addConstraint(Sketcher.Constraint("Vertical", 0))
sketch11.addConstraint(Sketcher.Constraint("Horizontal", 1))
sketch11.addConstraint(Sketcher.Constraint("Vertical", 2))
sketch11.addConstraint(Sketcher.Constraint("Horizontal", 3))
sketch11.addConstraint(Sketcher.Constraint("Vertical", 4))
sketch11.addConstraint(Sketcher.Constraint("Horizontal", 5))
sketch11.addConstraint(Sketcher.Constraint("Vertical", 6))
sketch11.addConstraint(Sketcher.Constraint("Horizontal", 7))
sketch11.addConstraint(Sketcher.Constraint("Horizontal", 1, 2, 4, 2))
sketch11.addConstraint(Sketcher.Constraint("Horizontal", 3, 2, 6, 2))
sketch11.addConstraint(Sketcher.Constraint("Equal", 3, 5))
sketch11.addConstraint(Sketcher.Constraint("DistanceX", 1, 1, 1, 2, 1.0))
sketch11.addConstraint(Sketcher.Constraint("DistanceY", 0, 1, 0, 2, 1550.0))
sketch11.addConstraint(Sketcher.Constraint("DistanceX", -1, 1, 0, 2, 212.0))
sketch11.addConstraint(Sketcher.Constraint("DistanceY", -1, 1, 0, 2, 775.0))
sketch11.addConstraint(Sketcher.Constraint("DistanceX", 4, 2, -1, 1, 19.0))
pad5 = doc.addObject("PartDesign::Pad", "Pad004")
body.addObject(pad5)
pad5.Profile = sketch11
pad5.Length = 1
pad5.Reversed = True

sketch12 = doc.addObject("Sketcher::SketchObject", "Sketch011")
body.addObject(sketch12)
sketch12.AttachmentSupport = (doc.XZ_Plane, [""])
sketch12.MapMode = "FlatFace"
sketch12.AttachmentOffset = App.Placement(App.Vector(0, 0, -830), App.Rotation())
add_polygon(sketch12, [(89, 100), (89, 90), (61, 90), (61, 100)])
sketch12.addConstraint(Sketcher.Constraint("Vertical", 0))
sketch12.addConstraint(Sketcher.Constraint("Horizontal", 1))
sketch12.addConstraint(Sketcher.Constraint("Vertical", 2))
sketch12.addConstraint(Sketcher.Constraint("Horizontal", 3))
sketch12.addConstraint(Sketcher.Constraint("DistanceX", 1, 2, 1, 1, 28.0))
sketch12.addConstraint(Sketcher.Constraint("DistanceY", 0, 2, 0, 1, 10.0))
sketch12.addConstraint(Sketcher.Constraint("DistanceX", -1, 1, 0, 2, 89.0))
sketch12.addConstraint(Sketcher.Constraint("DistanceY", -1, 1, 0, 2, 90.0))
pocket7 = doc.addObject("PartDesign::Pocket", "Pocket006")
body.addObject(pocket7)
pocket7.Profile = sketch12
pocket7.Length = 2000
pocket7.Reversed = True

doc.recompute()
